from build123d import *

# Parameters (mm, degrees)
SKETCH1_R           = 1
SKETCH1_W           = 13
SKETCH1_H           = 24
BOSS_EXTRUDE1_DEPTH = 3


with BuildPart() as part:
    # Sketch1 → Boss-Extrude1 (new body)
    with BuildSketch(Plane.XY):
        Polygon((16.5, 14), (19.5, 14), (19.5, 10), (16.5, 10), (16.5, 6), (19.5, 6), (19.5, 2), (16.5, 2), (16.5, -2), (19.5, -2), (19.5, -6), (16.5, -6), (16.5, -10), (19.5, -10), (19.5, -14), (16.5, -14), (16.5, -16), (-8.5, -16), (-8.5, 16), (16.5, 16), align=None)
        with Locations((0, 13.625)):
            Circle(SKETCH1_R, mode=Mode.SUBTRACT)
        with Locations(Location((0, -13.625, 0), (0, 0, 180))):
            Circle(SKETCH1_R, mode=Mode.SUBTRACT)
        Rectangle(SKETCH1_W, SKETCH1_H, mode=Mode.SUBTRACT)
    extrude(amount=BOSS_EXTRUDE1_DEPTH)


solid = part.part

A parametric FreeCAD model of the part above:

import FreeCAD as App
import Part
import Sketcher

V = App.Vector
Q = App.Units.Quantity

doc = App.newDocument("Part")
body = doc.addObject("PartDesign::Body", "Body")

# Sketch on XY plane
sketch1 = body.newObject("Sketcher::SketchObject", "Sketch")
sketch1.AttachmentSupport = (doc.getObject("XY_Plane"), [""])
sketch1.MapMode = "FlatFace"
sketch1.addGeometry(Part.LineSegment(V(19.5, 14, 0), V(16.5, 14, 0)), False)
sketch1.addGeometry(Part.LineSegment(V(16.5, 14, 0), V(16.5, 16, 0)), False)
sketch1.addGeometry(Part.LineSegment(V(16.5, 16, 0), V(-8.5, 16, 0)), False)
sketch1.addGeometry(Part.LineSegment(V(-8.5, 16, 0), V(-8.5, -16, 0)), False)
sketch1.addGeometry(Part.LineSegment(V(-8.5, -16, 0), V(16.5, -16, 0)), False)
sketch1.addGeometry(Part.LineSegment(V(16.5, -16, 0), V(16.5, -14, 0)), False)
sketch1.addGeometry(Part.LineSegment(V(16.5, -14, 0), V(19.5, -14, 0)), False)
sketch1.addGeometry(Part.LineSegment(V(19.5, -14, 0), V(19.5, -10, 0)), False)
sketch1.addGeometry(Part.LineSegment(V(19.5, -10, 0), V(16.5, -10, 0)), False)
sketch1.addGeometry(Part.LineSegment(V(16.5, -10, 0), V(16.5, -6, 0)), False)
sketch1.addGeometry(Part.LineSegment(V(16.5, -6, 0), V(19.5, -6, 0)), False)
sketch1.addGeometry(Part.LineSegment(V(19.5, -6, 0), V(19.5, -2, 0)), False)
sketch1.addGeometry(Part.LineSegment(V(19.5, -2, 0), V(16.5, -2, 0)), False)
sketch1.addGeometry(Part.LineSegment(V(16.5, -2, 0), V(16.5, 2, 0)), False)
sketch1.addGeometry(Part.LineSegment(V(16.5, 2, 0), V(19.5, 2, 0)), False)
sketch1.addGeometry(Part.LineSegment(V(19.5, 2, 0), V(19.5, 6, 0)), False)
sketch1.addGeometry(Part.LineSegment(V(19.5, 6, 0), V(16.5, 6, 0)), False)
sketch1.addGeometry(Part.LineSegment(V(16.5, 6, 0), V(16.5, 10, 0)), False)
sketch1.addGeometry(Part.LineSegment(V(16.5, 10, 0), V(19.5, 10, 0)), False)
sketch1.addGeometry(Part.LineSegment(V(19.5, 10, 0), V(19.5, 14, 0)), False)
sketch1.addGeometry(Part.Circle(V(0, -13.625, 0), V(0, 0, 1), 1), False)
sketch1.addGeometry(Part.LineSegment(V(-6.5, -12, 0), V(-6.5, 12, 0)), False)
sketch1.addGeometry(Part.LineSegment(V(-6.5, 12, 0), V(6.5, 12, 0)), False)
sketch1.addGeometry(Part.LineSegment(V(6.5, 12, 0), V(6.5, -12, 0)), False)
sketch1.addGeometry(Part.LineSegment(V(6.5, -12, 0), V(-6.5, -12, 0)), False)
sketch1.addGeometry(Part.Circle(V(0, 13.625, 0), V(0, 0, 1), 1), False)
sketch1.addConstraint(Sketcher.Constraint("Coincident", 0, 2, 1, 1))
sketch1.addConstraint(Sketcher.Constraint("Coincident", 1, 2, 2, 1))
sketch1.addConstraint(Sketcher.Constraint("Coincident", 2, 2, 3, 1))
sketch1.addConstraint(Sketcher.Constraint("Coincident", 3, 2, 4, 1))
sketch1.addConstraint(Sketcher.Constraint("Coincident", 4, 2, 5, 1))
sketch1.addConstraint(Sketcher.Constraint("Coincident", 5, 2, 6, 1))
sketch1.addConstraint(Sketcher.Constraint("Coincident", 6, 2, 7, 1))
sketch1.addConstraint(Sketcher.Constraint("Coincident", 7, 2, 8, 1))
sketch1.addConstraint(Sketcher.Constraint("Coincident", 8, 2, 9, 1))
sketch1.addConstraint(Sketcher.Constraint("Coincident", 9, 2, 10, 1))
sketch1.addConstraint(Sketcher.Constraint("Coincident", 10, 2, 11, 1))
sketch1.addConstraint(Sketcher.Constraint("Coincident", 11, 2, 12, 1))
sketch1.addConstraint(Sketcher.Constraint("Coincident", 12, 2, 13, 1))
sketch1.addConstraint(Sketcher.Constraint("Coincident", 13, 2, 14, 1))
sketch1.addConstraint(Sketcher.Constraint("Coincident", 14, 2, 15, 1))
sketch1.addConstraint(Sketcher.Constraint("Coincident", 15, 2, 16, 1))
sketch1.addConstraint(Sketcher.Constraint("Coincident", 16, 2, 17, 1))
sketch1.addConstraint(Sketcher.Constraint("Coincident", 17, 2, 18, 1))
sketch1.addConstraint(Sketcher.Constraint("Coincident", 18, 2, 19, 1))
sketch1.addConstraint(Sketcher.Constraint("Coincident", 19, 2, 0, 1))
sketch1.addConstraint(Sketcher.Constraint("Coincident", 21, 2, 22, 1))
sketch1.addConstraint(Sketcher.Constraint("Coincident", 22, 2, 23, 1))
sketch1.addConstraint(Sketcher.Constraint("Coincident", 23, 2, 24, 1))
sketch1.addConstraint(Sketcher.Constraint("Coincident", 24, 2, 21, 1))
sketch1.addConstraint(Sketcher.Constraint("Horizontal", 0))
sketch1.addConstraint(Sketcher.Constraint("Vertical", 1))
sketch1.addConstraint(Sketcher.Constraint("Horizontal", 2))
sketch1.addConstraint(Sketcher.Constraint("Vertical", 3))
sketch1.addConstraint(Sketcher.Constraint("Horizontal", 4))
sketch1.addConstraint(Sketcher.Constraint("Vertical", 5))
sketch1.addConstraint(Sketcher.Constraint("Horizontal", 6))
sketch1.addConstraint(Sketcher.Constraint("Vertical", 7))
sketch1.addConstraint(Sketcher.Constraint("Horizontal", 8))
sketch1.addConstraint(Sketcher.Constraint("Vertical", 9))
sketch1.addConstraint(Sketcher.Constraint("Horizontal", 10))
sketch1.addConstraint(Sketcher.Constraint("Vertical", 11))
sketch1.addConstraint(Sketcher.Constraint("Horizontal", 12))
sketch1.addConstraint(Sketcher.Constraint("Vertical", 13))
sketch1.addConstraint(Sketcher.Constraint("Horizontal", 14))
sketch1.addConstraint(Sketcher.Constraint("Vertical", 15))
sketch1.addConstraint(Sketcher.Constraint("Horizontal", 16))
sketch1.addConstraint(Sketcher.Constraint("Vertical", 17))
sketch1.addConstraint(Sketcher.Constraint("Horizontal", 18))
sketch1.addConstraint(Sketcher.Constraint("Vertical", 19))
sketch1.addConstraint(Sketcher.Constraint("Vertical", 21))
sketch1.addConstraint(Sketcher.Constraint("Horizontal", 22))
sketch1.addConstraint(Sketcher.Constraint("Vertical", 23))
sketch1.addConstraint(Sketcher.Constraint("Horizontal", 24))
sketch1.addConstraint(Sketcher.Constraint("Equal", 20, 25))
sketch1.addConstraint(Sketcher.Constraint("Symmetric", 20, 3, 25, 3, -1, 1))
sketch1.addConstraint(Sketcher.Constraint("Symmetric", 21, 2, 23, 2, -1, 1))
sketch1.addConstraint(Sketcher.Constraint("Symmetric", 1, 2, 4, 2, -1))
sketch1.addConstraint(Sketcher.Constraint("Symmetric", 11, 2, 14, 2, -1))
sketch1.addConstraint(Sketcher.Constraint("Symmetric", 9, 2, 16, 2, -1))
sketch1.addConstraint(Sketcher.Constraint("Symmetric", 7, 2, 18, 2, -1))
sketch1.addConstraint(Sketcher.Constraint("PointOnObject", 20, 3, -2))
sketch1.addConstraint(Sketcher.Constraint("Vertical", 5, 2, 8, 2))
sketch1.addConstraint(Sketcher.Constraint("Vertical", 7, 2, 10, 2))
sketch1.addConstraint(Sketcher.Constraint("Vertical", 9, 2, 12, 2))
sketch1.addConstraint(Sketcher.Constraint("Equal", 1, 5))
sketch1.addConstraint(Sketcher.Constraint("Equal", 7, 9))
sketch1.addConstraint(Sketcher.Constraint("Equal", 9, 11))
sketch1.addConstraint(Sketcher.Constraint("Equal", 11, 13))
sketch1.addConstraint(Sketcher.Constraint("Diameter", 20, Q("2 mm")))
sketch1.addConstraint(Sketcher.Constraint("DistanceX", 0, 2, 0, 1, Q("3 mm")))
sketch1.addConstraint(Sketcher.Constraint("DistanceX", 2, 2, 2, 1, Q("25 mm")))
sketch1.addConstraint(Sketcher.Constraint("DistanceX", 22, 1, 22, 2, Q("13 mm")))
sketch1.addConstraint(Sketcher.Constraint("DistanceY", 1, 1, 1, 2, Q("2 mm")))
sketch1.addConstraint(Sketcher.Constraint("DistanceY", 3, 2, 3, 1, Q("32 mm")))
sketch1.addConstraint(Sketcher.Constraint("DistanceY", 21, 1, 21, 2, Q("24 mm")))
sketch1.addConstraint(Sketcher.Constraint("DistanceX", 2, 2, 21, 2, Q("2 mm")))
sketch1.addConstraint(Sketcher.Constraint("DistanceY", 20, 3, 25, 3, Q("27.25 mm")))
pad1 = body.newObject("PartDesign::Pad", "Pad")
pad1.Profile = sketch1
pad1.Length = 3

doc.recompute()
